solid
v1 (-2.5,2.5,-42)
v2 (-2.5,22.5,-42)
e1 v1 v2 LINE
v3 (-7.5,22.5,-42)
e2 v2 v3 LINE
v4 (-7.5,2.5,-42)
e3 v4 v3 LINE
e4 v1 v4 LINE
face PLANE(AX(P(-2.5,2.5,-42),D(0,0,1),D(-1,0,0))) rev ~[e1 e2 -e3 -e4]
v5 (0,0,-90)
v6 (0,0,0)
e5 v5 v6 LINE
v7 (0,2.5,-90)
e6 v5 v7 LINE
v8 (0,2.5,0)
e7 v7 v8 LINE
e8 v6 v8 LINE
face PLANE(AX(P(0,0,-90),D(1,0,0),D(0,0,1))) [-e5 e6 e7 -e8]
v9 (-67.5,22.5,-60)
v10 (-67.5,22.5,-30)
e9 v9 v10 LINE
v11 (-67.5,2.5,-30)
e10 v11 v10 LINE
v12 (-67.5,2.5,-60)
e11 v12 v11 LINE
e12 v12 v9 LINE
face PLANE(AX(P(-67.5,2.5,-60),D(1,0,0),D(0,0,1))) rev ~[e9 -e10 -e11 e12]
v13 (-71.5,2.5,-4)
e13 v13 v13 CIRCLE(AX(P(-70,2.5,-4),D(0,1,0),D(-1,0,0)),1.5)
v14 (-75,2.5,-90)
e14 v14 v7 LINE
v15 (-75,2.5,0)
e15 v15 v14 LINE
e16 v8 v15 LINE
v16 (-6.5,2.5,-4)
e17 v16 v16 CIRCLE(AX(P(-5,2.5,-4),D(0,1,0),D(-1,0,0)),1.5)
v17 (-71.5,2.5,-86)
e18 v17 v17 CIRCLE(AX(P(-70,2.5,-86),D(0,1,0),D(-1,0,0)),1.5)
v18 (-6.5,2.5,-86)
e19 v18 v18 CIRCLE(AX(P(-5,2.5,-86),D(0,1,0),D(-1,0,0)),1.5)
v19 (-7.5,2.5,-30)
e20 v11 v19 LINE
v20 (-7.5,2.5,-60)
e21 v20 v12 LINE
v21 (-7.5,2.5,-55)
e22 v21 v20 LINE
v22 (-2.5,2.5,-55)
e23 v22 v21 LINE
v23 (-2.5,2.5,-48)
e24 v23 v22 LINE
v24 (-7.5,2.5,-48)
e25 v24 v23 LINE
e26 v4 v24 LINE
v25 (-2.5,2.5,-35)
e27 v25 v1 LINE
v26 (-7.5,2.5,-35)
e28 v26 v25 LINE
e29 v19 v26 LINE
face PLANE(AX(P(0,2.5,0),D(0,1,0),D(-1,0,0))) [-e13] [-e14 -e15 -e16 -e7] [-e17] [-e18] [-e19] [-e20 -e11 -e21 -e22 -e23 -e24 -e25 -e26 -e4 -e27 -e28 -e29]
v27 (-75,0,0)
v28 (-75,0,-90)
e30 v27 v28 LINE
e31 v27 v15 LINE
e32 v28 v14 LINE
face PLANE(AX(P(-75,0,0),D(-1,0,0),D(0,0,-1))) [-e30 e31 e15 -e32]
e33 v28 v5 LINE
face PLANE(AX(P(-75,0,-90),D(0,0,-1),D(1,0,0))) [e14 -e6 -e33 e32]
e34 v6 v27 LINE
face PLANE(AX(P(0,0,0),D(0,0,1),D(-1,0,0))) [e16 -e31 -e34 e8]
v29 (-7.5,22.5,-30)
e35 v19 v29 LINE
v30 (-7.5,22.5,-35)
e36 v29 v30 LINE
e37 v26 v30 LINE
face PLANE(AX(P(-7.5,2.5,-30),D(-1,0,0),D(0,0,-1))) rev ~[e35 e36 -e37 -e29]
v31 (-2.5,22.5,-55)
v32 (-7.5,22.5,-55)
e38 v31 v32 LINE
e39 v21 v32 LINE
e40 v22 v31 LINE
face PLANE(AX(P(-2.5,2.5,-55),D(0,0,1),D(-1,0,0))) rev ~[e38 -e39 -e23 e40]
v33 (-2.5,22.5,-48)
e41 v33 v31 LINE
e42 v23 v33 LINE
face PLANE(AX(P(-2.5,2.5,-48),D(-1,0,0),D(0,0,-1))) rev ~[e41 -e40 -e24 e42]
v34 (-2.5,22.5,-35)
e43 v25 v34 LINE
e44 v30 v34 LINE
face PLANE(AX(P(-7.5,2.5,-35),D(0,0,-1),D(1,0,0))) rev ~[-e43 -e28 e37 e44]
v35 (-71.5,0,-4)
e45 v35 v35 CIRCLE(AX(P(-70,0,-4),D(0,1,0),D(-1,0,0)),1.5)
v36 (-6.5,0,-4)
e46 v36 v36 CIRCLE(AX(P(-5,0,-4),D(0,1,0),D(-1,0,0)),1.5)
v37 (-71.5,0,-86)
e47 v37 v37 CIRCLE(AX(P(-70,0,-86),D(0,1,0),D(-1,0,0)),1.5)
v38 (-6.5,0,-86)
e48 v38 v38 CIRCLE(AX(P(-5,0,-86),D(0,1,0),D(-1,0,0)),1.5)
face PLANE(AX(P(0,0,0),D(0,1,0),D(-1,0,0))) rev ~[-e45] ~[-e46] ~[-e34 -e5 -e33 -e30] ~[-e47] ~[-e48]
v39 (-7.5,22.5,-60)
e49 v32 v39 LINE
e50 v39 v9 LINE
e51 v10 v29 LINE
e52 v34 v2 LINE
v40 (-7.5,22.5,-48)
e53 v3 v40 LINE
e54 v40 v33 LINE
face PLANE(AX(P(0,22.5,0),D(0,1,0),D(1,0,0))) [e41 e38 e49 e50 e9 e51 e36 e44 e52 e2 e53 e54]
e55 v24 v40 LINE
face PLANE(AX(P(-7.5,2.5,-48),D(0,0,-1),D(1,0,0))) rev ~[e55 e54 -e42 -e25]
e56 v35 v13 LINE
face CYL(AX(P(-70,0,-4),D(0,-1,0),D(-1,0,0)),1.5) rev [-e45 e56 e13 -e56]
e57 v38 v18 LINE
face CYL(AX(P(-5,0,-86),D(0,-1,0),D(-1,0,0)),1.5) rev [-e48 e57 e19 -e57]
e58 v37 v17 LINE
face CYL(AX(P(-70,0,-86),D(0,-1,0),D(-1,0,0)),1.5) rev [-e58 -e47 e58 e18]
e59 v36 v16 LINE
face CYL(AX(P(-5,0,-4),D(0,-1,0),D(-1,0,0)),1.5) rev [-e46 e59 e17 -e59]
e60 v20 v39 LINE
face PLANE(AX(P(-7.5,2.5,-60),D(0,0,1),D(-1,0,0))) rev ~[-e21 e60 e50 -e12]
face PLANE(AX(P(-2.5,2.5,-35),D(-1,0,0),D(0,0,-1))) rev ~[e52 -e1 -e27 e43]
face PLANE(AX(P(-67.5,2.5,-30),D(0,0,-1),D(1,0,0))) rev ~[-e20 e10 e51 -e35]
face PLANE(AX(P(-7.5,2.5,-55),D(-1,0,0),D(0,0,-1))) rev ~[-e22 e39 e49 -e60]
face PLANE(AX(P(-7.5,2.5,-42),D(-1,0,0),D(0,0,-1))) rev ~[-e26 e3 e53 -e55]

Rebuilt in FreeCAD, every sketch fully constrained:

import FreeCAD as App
import Part
import Sketcher

V = App.Vector


def add_polygon(sketch, points):
    """Adds a closed chain of lines whose ends are joined by coincident constraints."""
    first, n = sketch.GeometryCount, len(points)
    for a, b in zip(points, points[1:] + points[:1]):
        sketch.addGeometry(Part.LineSegment(App.Vector(*a, 0), App.Vector(*b, 0)), False)
    for i in range(n):
        sketch.addConstraint(Sketcher.Constraint("Coincident", first + i, 2, first + (i + 1) % n, 1))

doc = App.newDocument("Part")
body = doc.addObject("PartDesign::Body", "Body")

# Sketch on XZ plane
sketch1 = body.newObject("Sketcher::SketchObject", "Sketch")
sketch1.AttachmentSupport = (doc.getObject("XZ_Plane"), [""])
sketch1.MapMode = "FlatFace"
add_polygon(sketch1, [(-75, 0), (0, 0), (0, -90), (-75, -90)])  # lines 0-3
sketch1.addGeometry(Part.Circle(V(-5, -86, 0), V(0, 0, 1), 1.5), False)  # 4
sketch1.addGeometry(Part.Circle(V(-70, -86, 0), V(0, 0, 1), 1.5), False)  # 5
sketch1.addGeometry(Part.Circle(V(-5, -4, 0), V(0, 0, 1), 1.5), False)  # 6
sketch1.addGeometry(Part.Circle(V(-70, -4, 0), V(0, 0, 1), 1.5), False)  # 7
sketch1.addConstraint(Sketcher.Constraint("Horizontal", 0))
sketch1.addConstraint(Sketcher.Constraint("Vertical", 1))
sketch1.addConstraint(Sketcher.Constraint("Horizontal", 2))
sketch1.addConstraint(Sketcher.Constraint("Vertical", 3))
sketch1.addConstraint(Sketcher.Constraint("Coincident", 0, 2, -1, 1))
sketch1.addConstraint(Sketcher.Constraint("Equal", 4, 5))
sketch1.addConstraint(Sketcher.Constraint("Equal", 5, 6))
sketch1.addConstraint(Sketcher.Constraint("Equal", 6, 7))
sketch1.addConstraint(Sketcher.Constraint("Horizontal", 4, 3, 5, 3))
sketch1.addConstraint(Sketcher.Constraint("Horizontal", 6, 3, 7, 3))
sketch1.addConstraint(Sketcher.Constraint("Vertical", 4, 3, 6, 3))
sketch1.addConstraint(Sketcher.Constraint("Vertical", 5, 3, 7, 3))
sketch1.addConstraint(Sketcher.Constraint("Diameter", 4, 3.0))
sketch1.addConstraint(Sketcher.Constraint("DistanceX", 0, 1, 0, 2, 75.0))
sketch1.addConstraint(Sketcher.Constraint("DistanceY", 1, 2, 1, 1, 90.0))
sketch1.addConstraint(Sketcher.Constraint("DistanceX", 4, 3, -1, 1, 5.0))
sketch1.addConstraint(Sketcher.Constraint("DistanceY", 6, 3, -1, 1, 4.0))
sketch1.addConstraint(Sketcher.Constraint("DistanceY", 1, 2, 4, 3, 4.0))
sketch1.addConstraint(Sketcher.Constraint("DistanceX", 2, 2, 5, 3, 5.0))
pad1 = body.newObject("PartDesign::Pad", "Pad")
pad1.Profile = sketch1
pad1.Length = 2.5
pad1.Reversed = True

# Sketch on XZ plane
sketch2 = body.newObject("Sketcher::SketchObject", "Sketch001")
sketch2.AttachmentSupport = (doc.getObject("XZ_Plane"), [""])
sketch2.MapMode = "FlatFace"
sketch2.AttachmentOffset = App.Placement(V(0, 0, -2.5), App.Rotation())
add_polygon(sketch2, [(-68, -60), (-68, -30), (-8, -30), (-8, -35), (-2, -35), (-2, -42), (-8, -42), (-8, -48), (-2, -48), (-2, -55), (-8, -55), (-8, -60)])  # lines 0-11
sketch2.addConstraint(Sketcher.Constraint("Vertical", 0))
sketch2.addConstraint(Sketcher.Constraint("Horizontal", 1))
sketch2.addConstraint(Sketcher.Constraint("Vertical", 2))
sketch2.addConstraint(Sketcher.Constraint("Horizontal", 3))
sketch2.addConstraint(Sketcher.Constraint("Vertical", 4))
sketch2.addConstraint(Sketcher.Constraint("Horizontal", 5))
sketch2.addConstraint(Sketcher.Constraint("Vertical", 6))
sketch2.addConstraint(Sketcher.Constraint("Horizontal", 7))
sketch2.addConstraint(Sketcher.Constraint("Vertical", 8))
sketch2.addConstraint(Sketcher.Constraint("Horizontal", 9))
sketch2.addConstraint(Sketcher.Constraint("Vertical", 10))
sketch2.addConstraint(Sketcher.Constraint("Horizontal", 11))
sketch2.addConstraint(Sketcher.Constraint("Vertical", 2, 2, 5, 2))
sketch2.addConstraint(Sketcher.Constraint("Vertical", 4, 2, 7, 2))
sketch2.addConstraint(Sketcher.Constraint("Vertical", 6, 2, 9, 2))
sketch2.addConstraint(Sketcher.Constraint("Equal", 9, 2))
sketch2.addConstraint(Sketcher.Constraint("Equal", 4, 8))
sketch2.addConstraint(Sketcher.Constraint("Equal", 2, 10))
sketch2.addConstraint(Sketcher.Constraint("DistanceX", 1, 1, 1, 2, 60.0))
sketch2.addConstraint(Sketcher.Constraint("DistanceX", 3, 1, 3, 2, 5.0))
sketch2.addConstraint(Sketcher.Constraint("DistanceY", 0, 1, 0, 2, 30.0))
sketch2.addConstraint(Sketcher.Constraint("DistanceY", 4, 2, 4, 1, 7.0))
sketch2.addConstraint(Sketcher.Constraint("DistanceY", 0, 2, -1, 1, 30.0))
sketch2.addConstraint(Sketcher.Constraint("DistanceX", 0, 2, -1, 1, 67.5))
pad2 = body.newObject("PartDesign::Pad", "Pad001")
pad2.Profile = sketch2
pad2.Length = 20
pad2.Reversed = True

doc.recompute()
